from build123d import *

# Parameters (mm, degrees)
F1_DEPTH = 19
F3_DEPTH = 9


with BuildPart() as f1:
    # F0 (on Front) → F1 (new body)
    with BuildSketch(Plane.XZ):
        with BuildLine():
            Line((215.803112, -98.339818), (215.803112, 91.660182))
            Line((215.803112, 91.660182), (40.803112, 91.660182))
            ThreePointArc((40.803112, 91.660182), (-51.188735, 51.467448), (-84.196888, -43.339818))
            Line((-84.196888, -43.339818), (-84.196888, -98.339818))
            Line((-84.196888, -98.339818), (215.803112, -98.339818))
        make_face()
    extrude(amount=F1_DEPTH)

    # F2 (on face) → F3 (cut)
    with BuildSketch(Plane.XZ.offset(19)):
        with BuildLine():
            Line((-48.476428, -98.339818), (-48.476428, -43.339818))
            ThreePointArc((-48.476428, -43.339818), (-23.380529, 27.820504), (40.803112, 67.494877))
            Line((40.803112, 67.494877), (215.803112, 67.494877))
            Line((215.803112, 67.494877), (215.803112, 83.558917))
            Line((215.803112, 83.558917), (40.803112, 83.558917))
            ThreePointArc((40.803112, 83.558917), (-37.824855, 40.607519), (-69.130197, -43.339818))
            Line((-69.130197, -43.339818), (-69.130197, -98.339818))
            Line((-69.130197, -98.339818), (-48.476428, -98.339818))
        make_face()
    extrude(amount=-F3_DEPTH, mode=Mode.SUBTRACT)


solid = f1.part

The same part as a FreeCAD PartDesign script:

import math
import FreeCAD as App
import Part
import Sketcher

V = App.Vector
Q = App.Units.Quantity

doc = App.newDocument("Part")
body = doc.addObject("PartDesign::Body", "Body")

sketch1 = body.newObject("Sketcher::SketchObject", "Sketch")
sketch1.AttachmentSupport = (doc.getObject("XZ_Plane"), [""])
sketch1.MapMode = "FlatFace"
sketch1.addGeometry([
    Part.LineSegment(V(215.803112, -98.339818, 0), V(215.803112, 91.660182, 0)),
    Part.LineSegment(V(215.803112, 91.660182, 0), V(40.803112, 91.660182, 0)),
    Part.ArcOfCircle(Part.Circle(V(40.803113, -33.710189, 0), V(0, 0, 1), 125.370371), math.radians(90), math.radians(184.405196)),
    Part.LineSegment(V(-84.196888, -43.339818, 0), V(-84.196888, -98.339818, 0)),
    Part.LineSegment(V(-84.196888, -98.339818, 0), V(215.803112, -98.339818, 0)),
], False)
sketch1.addConstraint([
    Sketcher.Constraint("Coincident", 0, 2, 1, 1),
    Sketcher.Constraint("Tangent", 1, 2, 2, 1),
    Sketcher.Constraint("Coincident", 2, 2, 3, 1),
    Sketcher.Constraint("Coincident", 3, 2, 4, 1),
    Sketcher.Constraint("Coincident", 4, 2, 0, 1),
    Sketcher.Constraint("Vertical", 0),
    Sketcher.Constraint("Horizontal", 1),
    Sketcher.Constraint("Vertical", 3),
    Sketcher.Constraint("Horizontal", 4),
    Sketcher.Constraint("DistanceX", 1, 2, 1, 1, Q("175 mm")),
    Sketcher.Constraint("DistanceX", 4, 1, 4, 2, Q("300 mm")),
    Sketcher.Constraint("DistanceY", 0, 1, 0, 2, Q("190 mm")),
    Sketcher.Constraint("DistanceY", 3, 2, 3, 1, Q("55 mm")),
    Sketcher.Constraint("DistanceY", 2, 3, -1, 1, Q("33.710189 mm")),
    Sketcher.Constraint("DistanceX", -1, 1, 0, 2, Q("215.803112 mm")),
])
pad1 = body.newObject("PartDesign::Pad", "Pad")
pad1.Profile = sketch1
pad1.Length = 19

sketch2 = body.newObject("Sketcher::SketchObject", "Sketch001")
sketch2.AttachmentSupport = (doc.getObject("XZ_Plane"), [""])
sketch2.MapMode = "FlatFace"
sketch2.AttachmentOffset = App.Placement(V(0, 0, 19), App.Rotation())
sketch2.addGeometry([
    Part.LineSegment(V(-48.476428, -98.339818, 0), V(-48.476428, -43.339818, 0)),
    Part.ArcOfCircle(Part.Circle(V(64.960346, -43.339818, 0), V(0, 0, 1), 113.436774), math.radians(102.295737), math.radians(180)),
    Part.LineSegment(V(40.803112, 67.494877, 0), V(215.803112, 67.494877, 0)),
    Part.LineSegment(V(215.803112, 67.494877, 0), V(215.803112, 83.558917, 0)),
    Part.LineSegment(V(215.803112, 83.558917, 0), V(40.803112, 83.558917, 0)),
    Part.ArcOfCircle(Part.Circle(V(59.077629, -43.339817, 0), V(0, 0, 1), 128.207826), math.radians(98.19475), math.radians(180)),
    Part.LineSegment(V(-69.130197, -43.339818, 0), V(-69.130197, -98.339818, 0)),
    Part.LineSegment(V(-69.130197, -98.339818, 0), V(-48.476428, -98.339818, 0)),
], False)
sketch2.addConstraint([
    Sketcher.Constraint("Tangent", 0, 2, 1, 2),
    Sketcher.Constraint("Coincident", 1, 1, 2, 1),
    Sketcher.Constraint("Coincident", 2, 2, 3, 1),
    Sketcher.Constraint("Coincident", 3, 2, 4, 1),
    Sketcher.Constraint("Coincident", 4, 2, 5, 1),
    Sketcher.Constraint("Tangent", 5, 2, 6, 1),
    Sketcher.Constraint("Coincident", 6, 2, 7, 1),
    Sketcher.Constraint("Coincident", 7, 2, 0, 1),
    Sketcher.Constraint("Vertical", 0),
    Sketcher.Constraint("Horizontal", 2),
    Sketcher.Constraint("Vertical", 3),
    Sketcher.Constraint("Horizontal", 4),
    Sketcher.Constraint("Vertical", 6),
    Sketcher.Constraint("Horizontal", 7),
    Sketcher.Constraint("Horizontal", 1, 3, 5, 3),
    Sketcher.Constraint("Vertical", 1, 1, 4, 2),
    Sketcher.Constraint("DistanceX", 2, 1, 2, 2, Q("175 mm")),
    Sketcher.Constraint("DistanceY", 0, 1, 0, 2, Q("55 mm")),
    Sketcher.Constraint("Radius", 1, Q("113.436774 mm")),
    Sketcher.Constraint("Radius", 5, Q("128.207826 mm")),
    Sketcher.Constraint("DistanceX", 7, 1, 7, 2, Q("20.653769 mm")),
    Sketcher.Constraint("DistanceY", 3, 1, 3, 2, Q("16.06404 mm")),
    Sketcher.Constraint("DistanceY", 1, 3, -1, 1, Q("43.339818 mm")),
    Sketcher.Constraint("DistanceX", -1, 1, 5, 3, Q("59.077629 mm")),
])
pocket1 = body.newObject("PartDesign::Pocket", "Pocket")
pocket1.Profile = sketch2
pocket1.Length = 9

doc.recompute()
